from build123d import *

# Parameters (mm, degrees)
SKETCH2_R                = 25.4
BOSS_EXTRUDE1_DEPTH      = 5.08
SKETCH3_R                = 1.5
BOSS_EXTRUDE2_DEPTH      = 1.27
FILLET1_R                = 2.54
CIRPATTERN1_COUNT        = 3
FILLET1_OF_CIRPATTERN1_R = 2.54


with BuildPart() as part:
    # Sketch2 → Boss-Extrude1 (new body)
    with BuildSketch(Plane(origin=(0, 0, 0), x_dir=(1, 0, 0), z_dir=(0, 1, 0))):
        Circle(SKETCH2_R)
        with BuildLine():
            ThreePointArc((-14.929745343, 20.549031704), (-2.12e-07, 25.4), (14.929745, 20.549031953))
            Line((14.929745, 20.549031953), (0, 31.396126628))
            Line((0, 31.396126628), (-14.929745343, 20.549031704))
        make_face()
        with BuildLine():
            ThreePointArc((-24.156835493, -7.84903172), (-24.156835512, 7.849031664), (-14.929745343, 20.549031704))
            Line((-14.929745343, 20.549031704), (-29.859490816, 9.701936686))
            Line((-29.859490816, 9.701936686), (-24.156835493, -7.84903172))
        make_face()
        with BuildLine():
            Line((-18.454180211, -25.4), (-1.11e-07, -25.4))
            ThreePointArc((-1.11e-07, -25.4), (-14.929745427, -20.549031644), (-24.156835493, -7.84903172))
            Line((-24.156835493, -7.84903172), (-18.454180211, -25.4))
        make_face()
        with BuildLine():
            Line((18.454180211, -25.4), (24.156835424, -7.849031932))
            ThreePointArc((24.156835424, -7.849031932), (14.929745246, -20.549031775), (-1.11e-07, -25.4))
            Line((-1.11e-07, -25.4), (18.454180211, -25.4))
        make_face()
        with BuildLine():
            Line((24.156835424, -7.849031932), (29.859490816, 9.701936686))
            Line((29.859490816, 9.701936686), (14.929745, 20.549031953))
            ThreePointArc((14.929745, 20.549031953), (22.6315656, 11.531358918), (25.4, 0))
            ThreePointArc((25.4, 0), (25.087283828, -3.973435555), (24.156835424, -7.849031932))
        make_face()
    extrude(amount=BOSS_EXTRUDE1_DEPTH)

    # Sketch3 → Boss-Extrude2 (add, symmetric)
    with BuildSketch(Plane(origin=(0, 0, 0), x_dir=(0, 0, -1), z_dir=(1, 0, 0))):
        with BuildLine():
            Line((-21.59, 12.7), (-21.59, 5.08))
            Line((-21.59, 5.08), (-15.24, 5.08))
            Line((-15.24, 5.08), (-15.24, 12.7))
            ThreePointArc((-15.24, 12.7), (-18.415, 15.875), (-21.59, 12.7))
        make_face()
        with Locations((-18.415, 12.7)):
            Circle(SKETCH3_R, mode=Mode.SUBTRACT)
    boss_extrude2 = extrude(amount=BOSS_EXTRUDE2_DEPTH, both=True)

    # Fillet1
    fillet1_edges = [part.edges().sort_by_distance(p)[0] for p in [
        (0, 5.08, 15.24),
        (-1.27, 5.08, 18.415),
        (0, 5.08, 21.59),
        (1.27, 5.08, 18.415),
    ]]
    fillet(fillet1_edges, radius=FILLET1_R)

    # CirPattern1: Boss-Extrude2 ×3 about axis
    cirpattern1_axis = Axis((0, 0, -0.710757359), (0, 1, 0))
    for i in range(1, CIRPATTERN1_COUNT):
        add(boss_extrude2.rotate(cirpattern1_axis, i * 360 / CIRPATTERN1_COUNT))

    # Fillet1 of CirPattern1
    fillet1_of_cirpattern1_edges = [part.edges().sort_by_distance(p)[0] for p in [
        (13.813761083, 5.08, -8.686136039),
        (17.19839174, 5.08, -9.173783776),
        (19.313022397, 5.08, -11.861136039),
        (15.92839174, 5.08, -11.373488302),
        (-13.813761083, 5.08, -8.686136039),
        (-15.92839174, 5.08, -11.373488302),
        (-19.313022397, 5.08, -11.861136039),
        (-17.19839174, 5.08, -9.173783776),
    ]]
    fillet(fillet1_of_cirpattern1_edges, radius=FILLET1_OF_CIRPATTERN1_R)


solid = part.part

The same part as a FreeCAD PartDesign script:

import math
import FreeCAD as App
import Part
import Sketcher

V = App.Vector
Q = App.Units.Quantity


def edges_at(feature, points):
    """Names of the edges that pass closest to the given points."""
    edges = feature.Shape.Edges
    near = lambda p: min(range(len(edges)), key=lambda i: edges[i].distToShape(Part.Vertex(*p))[0])
    return sorted({f"Edge{near(p) + 1}" for p in points})


def add_polygon(sketch, points):
    """Adds a closed chain of lines whose ends are joined by coincident constraints."""
    first, n = sketch.GeometryCount, len(points)
    for a, b in zip(points, points[1:] + points[:1]):
        sketch.addGeometry(Part.LineSegment(App.Vector(*a, 0), App.Vector(*b, 0)), False)
    for i in range(n):
        sketch.addConstraint(Sketcher.Constraint("Coincident", first + i, 2, first + (i + 1) % n, 1))

doc = App.newDocument("Part")
params = doc.addObject("Spreadsheet::Sheet", "Params")
for row, (alias, value) in enumerate([
    ("pad1_length", "0.2 in"),
    ("sketch2_width", "0.3 in"),
    ("sketch2_radius", "0.125 in"),
    ("pad2_length", "0.1 in"),
    ("fillet_radius", "0.1 in"),
    ("fillet2_radius", "0.1 in"),
], start=1):
    params.set(f"A{row}", alias)
    params.set(f"B{row}", "=" + value)
    params.setAlias(f"B{row}", alias)

body = doc.addObject("PartDesign::Body", "Body")

# Sketch on XZ plane
sketch1 = body.newObject("Sketcher::SketchObject", "Sketch")
sketch1.AttachmentSupport = (doc.getObject("XZ_Plane"), [""])
sketch1.MapMode = "FlatFace"
add_polygon(sketch1, [(14.929745, -20.549032), (0, -31.396127), (-14.929745, -20.549032), (-29.859491, -9.701937), (-24.156835, 7.849032), (-18.45418, 25.4), (18.45418, 25.4), (24.156835, 7.849032), (29.859491, -9.701937)])  # lines 0-8
sketch1.addConstraint(Sketcher.Constraint("Horizontal", 5))
sketch1.addConstraint(Sketcher.Constraint("Symmetric", 3, 2, 6, 2, -2))
sketch1.addConstraint(Sketcher.Constraint("Symmetric", 2, 2, 7, 2, -2))
sketch1.addConstraint(Sketcher.Constraint("Symmetric", 1, 2, 8, 2, -2))
sketch1.addConstraint(Sketcher.Constraint("PointOnObject", 0, 2, -2))
sketch1.addConstraint(Sketcher.Constraint("Parallel", 1, 2))
sketch1.addConstraint(Sketcher.Constraint("Parallel", 3, 4))
sketch1.addConstraint(Sketcher.Constraint("Parallel", 6, 7))
sketch1.addConstraint(Sketcher.Constraint("Equal", 1, 2))
sketch1.addConstraint(Sketcher.Constraint("Equal", 2, 3))
sketch1.addConstraint(Sketcher.Constraint("Equal", 3, 4))
sketch1.addConstraint(Sketcher.Constraint("DistanceY", -1, 1, 4, 2, Q("1 in")))
sketch1.addConstraint(Sketcher.Constraint("Angle", 0, Q("-144 deg")))
sketch1.addConstraint(Sketcher.Constraint("Angle", 3, Q("72 deg")))
sketch1.addConstraint(Sketcher.Constraint("DistanceX", 5, 1, 5, 2, Q("36.90836 mm")))
pad1 = body.newObject("PartDesign::Pad", "Pad")
pad1.Profile = sketch1
pad1.setExpression("Length", "Params.pad1_length")
pad1.Reversed = True

# Sketch on YZ plane
sketch2 = body.newObject("Sketcher::SketchObject", "Sketch001")
sketch2.AttachmentSupport = (doc.getObject("YZ_Plane"), [""])
sketch2.MapMode = "FlatFace"
sketch2.addGeometry(Part.LineSegment(V(12.7, 21.59, 0), V(5.08, 21.59, 0)), False)
sketch2.addGeometry(Part.LineSegment(V(5.08, 21.59, 0), V(5.08, 15.24, 0)), False)
sketch2.addGeometry(Part.LineSegment(V(5.08, 15.24, 0), V(12.7, 15.24, 0)), False)
sketch2.addGeometry(Part.ArcOfCircle(Part.Circle(V(12.7, 18.415, 0), V(0, 0, 1), 3.175), math.radians(-90), math.radians(90)), False)
sketch2.addGeometry(Part.Circle(V(12.7, 18.415, 0), V(0, 0, 1), 1.5), False)
sketch2.addConstraint(Sketcher.Constraint("Coincident", 0, 2, 1, 1))
sketch2.addConstraint(Sketcher.Constraint("Coincident", 1, 2, 2, 1))
sketch2.addConstraint(Sketcher.Constraint("Tangent", 2, 2, 3, 1))
sketch2.addConstraint(Sketcher.Constraint("Tangent", 3, 2, 0, 1))
sketch2.addConstraint(Sketcher.Constraint("Horizontal", 0))
sketch2.addConstraint(Sketcher.Constraint("Vertical", 1))
sketch2.addConstraint(Sketcher.Constraint("Horizontal", 2))
sketch2.addConstraint(Sketcher.Constraint("Coincident", 4, 3, 3, 3))
sketch2.addConstraint(Sketcher.Constraint("DistanceX", 0, 2, 0, 1, Q("0.3 in")))
sketch2.addConstraint(Sketcher.Constraint("Radius", 3, Q("0.125 in")))
sketch2.addConstraint(Sketcher.Constraint("DistanceX", -1, 1, 3, 3, Q("0.5 in")))
sketch2.addConstraint(Sketcher.Constraint("DistanceY", -1, 1, 1, 2, Q("0.6 in")))
sketch2.addConstraint(Sketcher.Constraint("Diameter", 4, Q("3 mm")))
sketch2.setExpression("Constraints[8]", "Params.sketch2_width")
sketch2.setExpression("Constraints[9]", "Params.sketch2_radius")
pad2 = body.newObject("PartDesign::Pad", "Pad001")
pad2.Profile = sketch2
pad2.setExpression("Length", "Params.pad2_length")
pad2.Midplane = True
doc.recompute()

fillet = body.newObject("PartDesign::Fillet", "Fillet")
fillet.Base = (pad2, edges_at(pad2, [
    (0, 5.08, 15.24),
    (-1.27, 5.08, 18.415),
    (0, 5.08, 21.59),
    (1.27, 5.08, 18.415),
]))
fillet.setExpression("Radius", "Params.fillet_radius")
doc.recompute()

datumline = body.newObject("PartDesign::Line", "DatumLine")
datumline.Placement = App.Placement(V(0, 0, -0.710757), App.Rotation(V(0, 0, 1), V(0, 1, 0)))
polarpattern = body.newObject("PartDesign::PolarPattern", "PolarPattern")
polarpattern.Originals = [pad2]
polarpattern.Axis = (datumline, [""])
polarpattern.Angle = 360
polarpattern.Occurrences = 3
body.Tip = polarpattern
doc.recompute()

fillet2 = body.newObject("PartDesign::Fillet", "Fillet001")
fillet2.Base = (polarpattern, edges_at(polarpattern, [
    (13.814, 5.08, -8.686),
    (17.198, 5.08, -9.174),
    (19.313, 5.08, -11.861),
    (15.928, 5.08, -11.373),
    (-13.814, 5.08, -8.686),
    (-15.928, 5.08, -11.373),
    (-19.313, 5.08, -11.861),
    (-17.198, 5.08, -9.174),
]))
fillet2.setExpression("Radius", "Params.fillet2_radius")

doc.recompute()
